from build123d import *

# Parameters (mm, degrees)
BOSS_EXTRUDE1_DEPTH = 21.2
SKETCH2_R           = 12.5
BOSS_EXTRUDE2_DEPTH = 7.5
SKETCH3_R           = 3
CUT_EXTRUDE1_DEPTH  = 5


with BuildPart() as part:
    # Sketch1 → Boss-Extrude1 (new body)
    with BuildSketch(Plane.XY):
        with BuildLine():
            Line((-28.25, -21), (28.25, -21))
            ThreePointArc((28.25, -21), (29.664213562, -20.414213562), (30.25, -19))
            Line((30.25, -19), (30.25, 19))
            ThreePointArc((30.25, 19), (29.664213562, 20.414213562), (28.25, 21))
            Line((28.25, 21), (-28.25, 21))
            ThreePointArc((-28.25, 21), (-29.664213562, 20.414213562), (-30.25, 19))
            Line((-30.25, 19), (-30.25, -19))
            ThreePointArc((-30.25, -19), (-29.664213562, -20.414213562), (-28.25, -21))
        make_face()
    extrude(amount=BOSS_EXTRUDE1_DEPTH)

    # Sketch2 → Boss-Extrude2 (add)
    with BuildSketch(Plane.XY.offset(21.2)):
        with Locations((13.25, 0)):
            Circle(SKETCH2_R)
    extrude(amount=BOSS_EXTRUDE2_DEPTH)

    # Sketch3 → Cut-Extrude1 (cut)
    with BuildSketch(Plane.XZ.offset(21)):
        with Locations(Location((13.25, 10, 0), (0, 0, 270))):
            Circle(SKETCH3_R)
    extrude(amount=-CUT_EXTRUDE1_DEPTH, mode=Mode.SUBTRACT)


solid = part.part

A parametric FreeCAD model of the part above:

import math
import FreeCAD as App
import Part
import Sketcher

V = App.Vector

doc = App.newDocument("Part")
params = doc.addObject("Spreadsheet::Sheet", "Params")
for row, (alias, value) in enumerate([
    ("sketch1_radius", "2 mm"),
    ("sketch1_height", "38 mm"),
    ("sketch1_width", "56.5 mm"),
    ("pad1_length", "21.2 mm"),
    ("sketch2_diameter", "25 mm"),
    ("pad2_length", "7.5 mm"),
    ("sketch3_diameter", "6 mm"),
    ("pocket1_length", "5 mm"),
], start=1):
    params.set(f"A{row}", alias)
    params.set(f"B{row}", "=" + value)
    params.setAlias(f"B{row}", alias)

body = doc.addObject("PartDesign::Body", "Body")

# Sketch on XY plane
sketch1 = doc.addObject("Sketcher::SketchObject", "Sketch")
body.addObject(sketch1)
sketch1.AttachmentSupport = (doc.XY_Plane, [""])
sketch1.MapMode = "FlatFace"
sketch1.addGeometry([
    Part.LineSegment(V(-28.2, -21, 0), V(28.2, -21, 0)),  # 0
    Part.ArcOfCircle(Part.Circle(V(28.2, -19, 0), V(0, 0, 1), 2), math.radians(-90), math.radians(0)),  # 1
    Part.LineSegment(V(30.2, -19, 0), V(30.2, 19, 0)),  # 2
    Part.ArcOfCircle(Part.Circle(V(28.2, 19, 0), V(0, 0, 1), 2), math.radians(0), math.radians(90)),  # 3
    Part.LineSegment(V(28.2, 21, 0), V(-28.2, 21, 0)),  # 4
    Part.ArcOfCircle(Part.Circle(V(-28.2, 19, 0), V(0, 0, 1), 2), math.radians(90), math.radians(180)),  # 5
    Part.LineSegment(V(-30.2, 19, 0), V(-30.2, -19, 0)),  # 6
    Part.ArcOfCircle(Part.Circle(V(-28.2, -19, 0), V(0, 0, 1), 2), math.radians(-180), math.radians(-90)),  # 7
], False)
sketch1.addConstraint([
    Sketcher.Constraint("Tangent", 0, 2, 1, 1),
    Sketcher.Constraint("Tangent", 1, 2, 2, 1),
    Sketcher.Constraint("Tangent", 2, 2, 3, 1),
    Sketcher.Constraint("Tangent", 3, 2, 4, 1),
    Sketcher.Constraint("Tangent", 4, 2, 5, 1),
    Sketcher.Constraint("Tangent", 5, 2, 6, 1),
    Sketcher.Constraint("Tangent", 6, 2, 7, 1),
    Sketcher.Constraint("Tangent", 7, 2, 0, 1),
    Sketcher.Constraint("Horizontal", 0),
    Sketcher.Constraint("Vertical", 2),
    Sketcher.Constraint("Horizontal", 4),
    Sketcher.Constraint("Vertical", 6),
    Sketcher.Constraint("Equal", 1, 3),
    Sketcher.Constraint("Equal", 3, 5),
    Sketcher.Constraint("Equal", 5, 7),
    Sketcher.Constraint("Symmetric", 1, 3, 5, 3, -1, 1),
    Sketcher.Constraint("Radius", 1, 2.0),
    Sketcher.Constraint("DistanceY", 2, 1, 2, 2, 38.0),
    Sketcher.Constraint("DistanceX", 0, 1, 0, 2, 56.5),
])
sketch1.setExpression("Constraints[16]", "Params.sketch1_radius")
sketch1.setExpression("Constraints[17]", "Params.sketch1_height")
sketch1.setExpression("Constraints[18]", "Params.sketch1_width")
pad1 = doc.addObject("PartDesign::Pad", "Pad")
body.addObject(pad1)
pad1.Profile = sketch1
pad1.setExpression("Length", "Params.pad1_length")

# Sketch on XY plane
sketch2 = doc.addObject("Sketcher::SketchObject", "Sketch001")
body.addObject(sketch2)
sketch2.AttachmentSupport = (doc.XY_Plane, [""])
sketch2.MapMode = "FlatFace"
sketch2.AttachmentOffset = App.Placement(V(0, 0, 21.2), App.Rotation())
sketch2.addGeometry(Part.Circle(V(13, 0, 0), V(0, 0, 1), 12), False)
sketch2.addConstraint([
    Sketcher.Constraint("PointOnObject", 0, 3, -1),
    Sketcher.Constraint("Diameter", 0, 25.0),
    Sketcher.Constraint("DistanceX", -1, 1, 0, 3, 13.25),
])
sketch2.setExpression("Constraints[1]", "Params.sketch2_diameter")
pad2 = doc.addObject("PartDesign::Pad", "Pad001")
body.addObject(pad2)
pad2.Profile = sketch2
pad2.setExpression("Length", "Params.pad2_length")

# Sketch on XZ plane
sketch3 = doc.addObject("Sketcher::SketchObject", "Sketch002")
body.addObject(sketch3)
sketch3.AttachmentSupport = (doc.XZ_Plane, [""])
sketch3.MapMode = "FlatFace"
sketch3.AttachmentOffset = App.Placement(V(0, 0, 21), App.Rotation())
sketch3.addGeometry(Part.Circle(V(13.2, 10, 0), V(0, 0, 1), 3), False)
sketch3.addConstraint([
    Sketcher.Constraint("Diameter", 0, 6.0),
    Sketcher.Constraint("DistanceY", -1, 1, 0, 3, 10.0),
    Sketcher.Constraint("DistanceX", -1, 1, 0, 3, 13.25),
])
sketch3.setExpression("Constraints[0]", "Params.sketch3_diameter")
pocket1 = doc.addObject("PartDesign::Pocket", "Pocket")
body.addObject(pocket1)
pocket1.Profile = sketch3
pocket1.setExpression("Length", "Params.pocket1_length")

doc.recompute()
